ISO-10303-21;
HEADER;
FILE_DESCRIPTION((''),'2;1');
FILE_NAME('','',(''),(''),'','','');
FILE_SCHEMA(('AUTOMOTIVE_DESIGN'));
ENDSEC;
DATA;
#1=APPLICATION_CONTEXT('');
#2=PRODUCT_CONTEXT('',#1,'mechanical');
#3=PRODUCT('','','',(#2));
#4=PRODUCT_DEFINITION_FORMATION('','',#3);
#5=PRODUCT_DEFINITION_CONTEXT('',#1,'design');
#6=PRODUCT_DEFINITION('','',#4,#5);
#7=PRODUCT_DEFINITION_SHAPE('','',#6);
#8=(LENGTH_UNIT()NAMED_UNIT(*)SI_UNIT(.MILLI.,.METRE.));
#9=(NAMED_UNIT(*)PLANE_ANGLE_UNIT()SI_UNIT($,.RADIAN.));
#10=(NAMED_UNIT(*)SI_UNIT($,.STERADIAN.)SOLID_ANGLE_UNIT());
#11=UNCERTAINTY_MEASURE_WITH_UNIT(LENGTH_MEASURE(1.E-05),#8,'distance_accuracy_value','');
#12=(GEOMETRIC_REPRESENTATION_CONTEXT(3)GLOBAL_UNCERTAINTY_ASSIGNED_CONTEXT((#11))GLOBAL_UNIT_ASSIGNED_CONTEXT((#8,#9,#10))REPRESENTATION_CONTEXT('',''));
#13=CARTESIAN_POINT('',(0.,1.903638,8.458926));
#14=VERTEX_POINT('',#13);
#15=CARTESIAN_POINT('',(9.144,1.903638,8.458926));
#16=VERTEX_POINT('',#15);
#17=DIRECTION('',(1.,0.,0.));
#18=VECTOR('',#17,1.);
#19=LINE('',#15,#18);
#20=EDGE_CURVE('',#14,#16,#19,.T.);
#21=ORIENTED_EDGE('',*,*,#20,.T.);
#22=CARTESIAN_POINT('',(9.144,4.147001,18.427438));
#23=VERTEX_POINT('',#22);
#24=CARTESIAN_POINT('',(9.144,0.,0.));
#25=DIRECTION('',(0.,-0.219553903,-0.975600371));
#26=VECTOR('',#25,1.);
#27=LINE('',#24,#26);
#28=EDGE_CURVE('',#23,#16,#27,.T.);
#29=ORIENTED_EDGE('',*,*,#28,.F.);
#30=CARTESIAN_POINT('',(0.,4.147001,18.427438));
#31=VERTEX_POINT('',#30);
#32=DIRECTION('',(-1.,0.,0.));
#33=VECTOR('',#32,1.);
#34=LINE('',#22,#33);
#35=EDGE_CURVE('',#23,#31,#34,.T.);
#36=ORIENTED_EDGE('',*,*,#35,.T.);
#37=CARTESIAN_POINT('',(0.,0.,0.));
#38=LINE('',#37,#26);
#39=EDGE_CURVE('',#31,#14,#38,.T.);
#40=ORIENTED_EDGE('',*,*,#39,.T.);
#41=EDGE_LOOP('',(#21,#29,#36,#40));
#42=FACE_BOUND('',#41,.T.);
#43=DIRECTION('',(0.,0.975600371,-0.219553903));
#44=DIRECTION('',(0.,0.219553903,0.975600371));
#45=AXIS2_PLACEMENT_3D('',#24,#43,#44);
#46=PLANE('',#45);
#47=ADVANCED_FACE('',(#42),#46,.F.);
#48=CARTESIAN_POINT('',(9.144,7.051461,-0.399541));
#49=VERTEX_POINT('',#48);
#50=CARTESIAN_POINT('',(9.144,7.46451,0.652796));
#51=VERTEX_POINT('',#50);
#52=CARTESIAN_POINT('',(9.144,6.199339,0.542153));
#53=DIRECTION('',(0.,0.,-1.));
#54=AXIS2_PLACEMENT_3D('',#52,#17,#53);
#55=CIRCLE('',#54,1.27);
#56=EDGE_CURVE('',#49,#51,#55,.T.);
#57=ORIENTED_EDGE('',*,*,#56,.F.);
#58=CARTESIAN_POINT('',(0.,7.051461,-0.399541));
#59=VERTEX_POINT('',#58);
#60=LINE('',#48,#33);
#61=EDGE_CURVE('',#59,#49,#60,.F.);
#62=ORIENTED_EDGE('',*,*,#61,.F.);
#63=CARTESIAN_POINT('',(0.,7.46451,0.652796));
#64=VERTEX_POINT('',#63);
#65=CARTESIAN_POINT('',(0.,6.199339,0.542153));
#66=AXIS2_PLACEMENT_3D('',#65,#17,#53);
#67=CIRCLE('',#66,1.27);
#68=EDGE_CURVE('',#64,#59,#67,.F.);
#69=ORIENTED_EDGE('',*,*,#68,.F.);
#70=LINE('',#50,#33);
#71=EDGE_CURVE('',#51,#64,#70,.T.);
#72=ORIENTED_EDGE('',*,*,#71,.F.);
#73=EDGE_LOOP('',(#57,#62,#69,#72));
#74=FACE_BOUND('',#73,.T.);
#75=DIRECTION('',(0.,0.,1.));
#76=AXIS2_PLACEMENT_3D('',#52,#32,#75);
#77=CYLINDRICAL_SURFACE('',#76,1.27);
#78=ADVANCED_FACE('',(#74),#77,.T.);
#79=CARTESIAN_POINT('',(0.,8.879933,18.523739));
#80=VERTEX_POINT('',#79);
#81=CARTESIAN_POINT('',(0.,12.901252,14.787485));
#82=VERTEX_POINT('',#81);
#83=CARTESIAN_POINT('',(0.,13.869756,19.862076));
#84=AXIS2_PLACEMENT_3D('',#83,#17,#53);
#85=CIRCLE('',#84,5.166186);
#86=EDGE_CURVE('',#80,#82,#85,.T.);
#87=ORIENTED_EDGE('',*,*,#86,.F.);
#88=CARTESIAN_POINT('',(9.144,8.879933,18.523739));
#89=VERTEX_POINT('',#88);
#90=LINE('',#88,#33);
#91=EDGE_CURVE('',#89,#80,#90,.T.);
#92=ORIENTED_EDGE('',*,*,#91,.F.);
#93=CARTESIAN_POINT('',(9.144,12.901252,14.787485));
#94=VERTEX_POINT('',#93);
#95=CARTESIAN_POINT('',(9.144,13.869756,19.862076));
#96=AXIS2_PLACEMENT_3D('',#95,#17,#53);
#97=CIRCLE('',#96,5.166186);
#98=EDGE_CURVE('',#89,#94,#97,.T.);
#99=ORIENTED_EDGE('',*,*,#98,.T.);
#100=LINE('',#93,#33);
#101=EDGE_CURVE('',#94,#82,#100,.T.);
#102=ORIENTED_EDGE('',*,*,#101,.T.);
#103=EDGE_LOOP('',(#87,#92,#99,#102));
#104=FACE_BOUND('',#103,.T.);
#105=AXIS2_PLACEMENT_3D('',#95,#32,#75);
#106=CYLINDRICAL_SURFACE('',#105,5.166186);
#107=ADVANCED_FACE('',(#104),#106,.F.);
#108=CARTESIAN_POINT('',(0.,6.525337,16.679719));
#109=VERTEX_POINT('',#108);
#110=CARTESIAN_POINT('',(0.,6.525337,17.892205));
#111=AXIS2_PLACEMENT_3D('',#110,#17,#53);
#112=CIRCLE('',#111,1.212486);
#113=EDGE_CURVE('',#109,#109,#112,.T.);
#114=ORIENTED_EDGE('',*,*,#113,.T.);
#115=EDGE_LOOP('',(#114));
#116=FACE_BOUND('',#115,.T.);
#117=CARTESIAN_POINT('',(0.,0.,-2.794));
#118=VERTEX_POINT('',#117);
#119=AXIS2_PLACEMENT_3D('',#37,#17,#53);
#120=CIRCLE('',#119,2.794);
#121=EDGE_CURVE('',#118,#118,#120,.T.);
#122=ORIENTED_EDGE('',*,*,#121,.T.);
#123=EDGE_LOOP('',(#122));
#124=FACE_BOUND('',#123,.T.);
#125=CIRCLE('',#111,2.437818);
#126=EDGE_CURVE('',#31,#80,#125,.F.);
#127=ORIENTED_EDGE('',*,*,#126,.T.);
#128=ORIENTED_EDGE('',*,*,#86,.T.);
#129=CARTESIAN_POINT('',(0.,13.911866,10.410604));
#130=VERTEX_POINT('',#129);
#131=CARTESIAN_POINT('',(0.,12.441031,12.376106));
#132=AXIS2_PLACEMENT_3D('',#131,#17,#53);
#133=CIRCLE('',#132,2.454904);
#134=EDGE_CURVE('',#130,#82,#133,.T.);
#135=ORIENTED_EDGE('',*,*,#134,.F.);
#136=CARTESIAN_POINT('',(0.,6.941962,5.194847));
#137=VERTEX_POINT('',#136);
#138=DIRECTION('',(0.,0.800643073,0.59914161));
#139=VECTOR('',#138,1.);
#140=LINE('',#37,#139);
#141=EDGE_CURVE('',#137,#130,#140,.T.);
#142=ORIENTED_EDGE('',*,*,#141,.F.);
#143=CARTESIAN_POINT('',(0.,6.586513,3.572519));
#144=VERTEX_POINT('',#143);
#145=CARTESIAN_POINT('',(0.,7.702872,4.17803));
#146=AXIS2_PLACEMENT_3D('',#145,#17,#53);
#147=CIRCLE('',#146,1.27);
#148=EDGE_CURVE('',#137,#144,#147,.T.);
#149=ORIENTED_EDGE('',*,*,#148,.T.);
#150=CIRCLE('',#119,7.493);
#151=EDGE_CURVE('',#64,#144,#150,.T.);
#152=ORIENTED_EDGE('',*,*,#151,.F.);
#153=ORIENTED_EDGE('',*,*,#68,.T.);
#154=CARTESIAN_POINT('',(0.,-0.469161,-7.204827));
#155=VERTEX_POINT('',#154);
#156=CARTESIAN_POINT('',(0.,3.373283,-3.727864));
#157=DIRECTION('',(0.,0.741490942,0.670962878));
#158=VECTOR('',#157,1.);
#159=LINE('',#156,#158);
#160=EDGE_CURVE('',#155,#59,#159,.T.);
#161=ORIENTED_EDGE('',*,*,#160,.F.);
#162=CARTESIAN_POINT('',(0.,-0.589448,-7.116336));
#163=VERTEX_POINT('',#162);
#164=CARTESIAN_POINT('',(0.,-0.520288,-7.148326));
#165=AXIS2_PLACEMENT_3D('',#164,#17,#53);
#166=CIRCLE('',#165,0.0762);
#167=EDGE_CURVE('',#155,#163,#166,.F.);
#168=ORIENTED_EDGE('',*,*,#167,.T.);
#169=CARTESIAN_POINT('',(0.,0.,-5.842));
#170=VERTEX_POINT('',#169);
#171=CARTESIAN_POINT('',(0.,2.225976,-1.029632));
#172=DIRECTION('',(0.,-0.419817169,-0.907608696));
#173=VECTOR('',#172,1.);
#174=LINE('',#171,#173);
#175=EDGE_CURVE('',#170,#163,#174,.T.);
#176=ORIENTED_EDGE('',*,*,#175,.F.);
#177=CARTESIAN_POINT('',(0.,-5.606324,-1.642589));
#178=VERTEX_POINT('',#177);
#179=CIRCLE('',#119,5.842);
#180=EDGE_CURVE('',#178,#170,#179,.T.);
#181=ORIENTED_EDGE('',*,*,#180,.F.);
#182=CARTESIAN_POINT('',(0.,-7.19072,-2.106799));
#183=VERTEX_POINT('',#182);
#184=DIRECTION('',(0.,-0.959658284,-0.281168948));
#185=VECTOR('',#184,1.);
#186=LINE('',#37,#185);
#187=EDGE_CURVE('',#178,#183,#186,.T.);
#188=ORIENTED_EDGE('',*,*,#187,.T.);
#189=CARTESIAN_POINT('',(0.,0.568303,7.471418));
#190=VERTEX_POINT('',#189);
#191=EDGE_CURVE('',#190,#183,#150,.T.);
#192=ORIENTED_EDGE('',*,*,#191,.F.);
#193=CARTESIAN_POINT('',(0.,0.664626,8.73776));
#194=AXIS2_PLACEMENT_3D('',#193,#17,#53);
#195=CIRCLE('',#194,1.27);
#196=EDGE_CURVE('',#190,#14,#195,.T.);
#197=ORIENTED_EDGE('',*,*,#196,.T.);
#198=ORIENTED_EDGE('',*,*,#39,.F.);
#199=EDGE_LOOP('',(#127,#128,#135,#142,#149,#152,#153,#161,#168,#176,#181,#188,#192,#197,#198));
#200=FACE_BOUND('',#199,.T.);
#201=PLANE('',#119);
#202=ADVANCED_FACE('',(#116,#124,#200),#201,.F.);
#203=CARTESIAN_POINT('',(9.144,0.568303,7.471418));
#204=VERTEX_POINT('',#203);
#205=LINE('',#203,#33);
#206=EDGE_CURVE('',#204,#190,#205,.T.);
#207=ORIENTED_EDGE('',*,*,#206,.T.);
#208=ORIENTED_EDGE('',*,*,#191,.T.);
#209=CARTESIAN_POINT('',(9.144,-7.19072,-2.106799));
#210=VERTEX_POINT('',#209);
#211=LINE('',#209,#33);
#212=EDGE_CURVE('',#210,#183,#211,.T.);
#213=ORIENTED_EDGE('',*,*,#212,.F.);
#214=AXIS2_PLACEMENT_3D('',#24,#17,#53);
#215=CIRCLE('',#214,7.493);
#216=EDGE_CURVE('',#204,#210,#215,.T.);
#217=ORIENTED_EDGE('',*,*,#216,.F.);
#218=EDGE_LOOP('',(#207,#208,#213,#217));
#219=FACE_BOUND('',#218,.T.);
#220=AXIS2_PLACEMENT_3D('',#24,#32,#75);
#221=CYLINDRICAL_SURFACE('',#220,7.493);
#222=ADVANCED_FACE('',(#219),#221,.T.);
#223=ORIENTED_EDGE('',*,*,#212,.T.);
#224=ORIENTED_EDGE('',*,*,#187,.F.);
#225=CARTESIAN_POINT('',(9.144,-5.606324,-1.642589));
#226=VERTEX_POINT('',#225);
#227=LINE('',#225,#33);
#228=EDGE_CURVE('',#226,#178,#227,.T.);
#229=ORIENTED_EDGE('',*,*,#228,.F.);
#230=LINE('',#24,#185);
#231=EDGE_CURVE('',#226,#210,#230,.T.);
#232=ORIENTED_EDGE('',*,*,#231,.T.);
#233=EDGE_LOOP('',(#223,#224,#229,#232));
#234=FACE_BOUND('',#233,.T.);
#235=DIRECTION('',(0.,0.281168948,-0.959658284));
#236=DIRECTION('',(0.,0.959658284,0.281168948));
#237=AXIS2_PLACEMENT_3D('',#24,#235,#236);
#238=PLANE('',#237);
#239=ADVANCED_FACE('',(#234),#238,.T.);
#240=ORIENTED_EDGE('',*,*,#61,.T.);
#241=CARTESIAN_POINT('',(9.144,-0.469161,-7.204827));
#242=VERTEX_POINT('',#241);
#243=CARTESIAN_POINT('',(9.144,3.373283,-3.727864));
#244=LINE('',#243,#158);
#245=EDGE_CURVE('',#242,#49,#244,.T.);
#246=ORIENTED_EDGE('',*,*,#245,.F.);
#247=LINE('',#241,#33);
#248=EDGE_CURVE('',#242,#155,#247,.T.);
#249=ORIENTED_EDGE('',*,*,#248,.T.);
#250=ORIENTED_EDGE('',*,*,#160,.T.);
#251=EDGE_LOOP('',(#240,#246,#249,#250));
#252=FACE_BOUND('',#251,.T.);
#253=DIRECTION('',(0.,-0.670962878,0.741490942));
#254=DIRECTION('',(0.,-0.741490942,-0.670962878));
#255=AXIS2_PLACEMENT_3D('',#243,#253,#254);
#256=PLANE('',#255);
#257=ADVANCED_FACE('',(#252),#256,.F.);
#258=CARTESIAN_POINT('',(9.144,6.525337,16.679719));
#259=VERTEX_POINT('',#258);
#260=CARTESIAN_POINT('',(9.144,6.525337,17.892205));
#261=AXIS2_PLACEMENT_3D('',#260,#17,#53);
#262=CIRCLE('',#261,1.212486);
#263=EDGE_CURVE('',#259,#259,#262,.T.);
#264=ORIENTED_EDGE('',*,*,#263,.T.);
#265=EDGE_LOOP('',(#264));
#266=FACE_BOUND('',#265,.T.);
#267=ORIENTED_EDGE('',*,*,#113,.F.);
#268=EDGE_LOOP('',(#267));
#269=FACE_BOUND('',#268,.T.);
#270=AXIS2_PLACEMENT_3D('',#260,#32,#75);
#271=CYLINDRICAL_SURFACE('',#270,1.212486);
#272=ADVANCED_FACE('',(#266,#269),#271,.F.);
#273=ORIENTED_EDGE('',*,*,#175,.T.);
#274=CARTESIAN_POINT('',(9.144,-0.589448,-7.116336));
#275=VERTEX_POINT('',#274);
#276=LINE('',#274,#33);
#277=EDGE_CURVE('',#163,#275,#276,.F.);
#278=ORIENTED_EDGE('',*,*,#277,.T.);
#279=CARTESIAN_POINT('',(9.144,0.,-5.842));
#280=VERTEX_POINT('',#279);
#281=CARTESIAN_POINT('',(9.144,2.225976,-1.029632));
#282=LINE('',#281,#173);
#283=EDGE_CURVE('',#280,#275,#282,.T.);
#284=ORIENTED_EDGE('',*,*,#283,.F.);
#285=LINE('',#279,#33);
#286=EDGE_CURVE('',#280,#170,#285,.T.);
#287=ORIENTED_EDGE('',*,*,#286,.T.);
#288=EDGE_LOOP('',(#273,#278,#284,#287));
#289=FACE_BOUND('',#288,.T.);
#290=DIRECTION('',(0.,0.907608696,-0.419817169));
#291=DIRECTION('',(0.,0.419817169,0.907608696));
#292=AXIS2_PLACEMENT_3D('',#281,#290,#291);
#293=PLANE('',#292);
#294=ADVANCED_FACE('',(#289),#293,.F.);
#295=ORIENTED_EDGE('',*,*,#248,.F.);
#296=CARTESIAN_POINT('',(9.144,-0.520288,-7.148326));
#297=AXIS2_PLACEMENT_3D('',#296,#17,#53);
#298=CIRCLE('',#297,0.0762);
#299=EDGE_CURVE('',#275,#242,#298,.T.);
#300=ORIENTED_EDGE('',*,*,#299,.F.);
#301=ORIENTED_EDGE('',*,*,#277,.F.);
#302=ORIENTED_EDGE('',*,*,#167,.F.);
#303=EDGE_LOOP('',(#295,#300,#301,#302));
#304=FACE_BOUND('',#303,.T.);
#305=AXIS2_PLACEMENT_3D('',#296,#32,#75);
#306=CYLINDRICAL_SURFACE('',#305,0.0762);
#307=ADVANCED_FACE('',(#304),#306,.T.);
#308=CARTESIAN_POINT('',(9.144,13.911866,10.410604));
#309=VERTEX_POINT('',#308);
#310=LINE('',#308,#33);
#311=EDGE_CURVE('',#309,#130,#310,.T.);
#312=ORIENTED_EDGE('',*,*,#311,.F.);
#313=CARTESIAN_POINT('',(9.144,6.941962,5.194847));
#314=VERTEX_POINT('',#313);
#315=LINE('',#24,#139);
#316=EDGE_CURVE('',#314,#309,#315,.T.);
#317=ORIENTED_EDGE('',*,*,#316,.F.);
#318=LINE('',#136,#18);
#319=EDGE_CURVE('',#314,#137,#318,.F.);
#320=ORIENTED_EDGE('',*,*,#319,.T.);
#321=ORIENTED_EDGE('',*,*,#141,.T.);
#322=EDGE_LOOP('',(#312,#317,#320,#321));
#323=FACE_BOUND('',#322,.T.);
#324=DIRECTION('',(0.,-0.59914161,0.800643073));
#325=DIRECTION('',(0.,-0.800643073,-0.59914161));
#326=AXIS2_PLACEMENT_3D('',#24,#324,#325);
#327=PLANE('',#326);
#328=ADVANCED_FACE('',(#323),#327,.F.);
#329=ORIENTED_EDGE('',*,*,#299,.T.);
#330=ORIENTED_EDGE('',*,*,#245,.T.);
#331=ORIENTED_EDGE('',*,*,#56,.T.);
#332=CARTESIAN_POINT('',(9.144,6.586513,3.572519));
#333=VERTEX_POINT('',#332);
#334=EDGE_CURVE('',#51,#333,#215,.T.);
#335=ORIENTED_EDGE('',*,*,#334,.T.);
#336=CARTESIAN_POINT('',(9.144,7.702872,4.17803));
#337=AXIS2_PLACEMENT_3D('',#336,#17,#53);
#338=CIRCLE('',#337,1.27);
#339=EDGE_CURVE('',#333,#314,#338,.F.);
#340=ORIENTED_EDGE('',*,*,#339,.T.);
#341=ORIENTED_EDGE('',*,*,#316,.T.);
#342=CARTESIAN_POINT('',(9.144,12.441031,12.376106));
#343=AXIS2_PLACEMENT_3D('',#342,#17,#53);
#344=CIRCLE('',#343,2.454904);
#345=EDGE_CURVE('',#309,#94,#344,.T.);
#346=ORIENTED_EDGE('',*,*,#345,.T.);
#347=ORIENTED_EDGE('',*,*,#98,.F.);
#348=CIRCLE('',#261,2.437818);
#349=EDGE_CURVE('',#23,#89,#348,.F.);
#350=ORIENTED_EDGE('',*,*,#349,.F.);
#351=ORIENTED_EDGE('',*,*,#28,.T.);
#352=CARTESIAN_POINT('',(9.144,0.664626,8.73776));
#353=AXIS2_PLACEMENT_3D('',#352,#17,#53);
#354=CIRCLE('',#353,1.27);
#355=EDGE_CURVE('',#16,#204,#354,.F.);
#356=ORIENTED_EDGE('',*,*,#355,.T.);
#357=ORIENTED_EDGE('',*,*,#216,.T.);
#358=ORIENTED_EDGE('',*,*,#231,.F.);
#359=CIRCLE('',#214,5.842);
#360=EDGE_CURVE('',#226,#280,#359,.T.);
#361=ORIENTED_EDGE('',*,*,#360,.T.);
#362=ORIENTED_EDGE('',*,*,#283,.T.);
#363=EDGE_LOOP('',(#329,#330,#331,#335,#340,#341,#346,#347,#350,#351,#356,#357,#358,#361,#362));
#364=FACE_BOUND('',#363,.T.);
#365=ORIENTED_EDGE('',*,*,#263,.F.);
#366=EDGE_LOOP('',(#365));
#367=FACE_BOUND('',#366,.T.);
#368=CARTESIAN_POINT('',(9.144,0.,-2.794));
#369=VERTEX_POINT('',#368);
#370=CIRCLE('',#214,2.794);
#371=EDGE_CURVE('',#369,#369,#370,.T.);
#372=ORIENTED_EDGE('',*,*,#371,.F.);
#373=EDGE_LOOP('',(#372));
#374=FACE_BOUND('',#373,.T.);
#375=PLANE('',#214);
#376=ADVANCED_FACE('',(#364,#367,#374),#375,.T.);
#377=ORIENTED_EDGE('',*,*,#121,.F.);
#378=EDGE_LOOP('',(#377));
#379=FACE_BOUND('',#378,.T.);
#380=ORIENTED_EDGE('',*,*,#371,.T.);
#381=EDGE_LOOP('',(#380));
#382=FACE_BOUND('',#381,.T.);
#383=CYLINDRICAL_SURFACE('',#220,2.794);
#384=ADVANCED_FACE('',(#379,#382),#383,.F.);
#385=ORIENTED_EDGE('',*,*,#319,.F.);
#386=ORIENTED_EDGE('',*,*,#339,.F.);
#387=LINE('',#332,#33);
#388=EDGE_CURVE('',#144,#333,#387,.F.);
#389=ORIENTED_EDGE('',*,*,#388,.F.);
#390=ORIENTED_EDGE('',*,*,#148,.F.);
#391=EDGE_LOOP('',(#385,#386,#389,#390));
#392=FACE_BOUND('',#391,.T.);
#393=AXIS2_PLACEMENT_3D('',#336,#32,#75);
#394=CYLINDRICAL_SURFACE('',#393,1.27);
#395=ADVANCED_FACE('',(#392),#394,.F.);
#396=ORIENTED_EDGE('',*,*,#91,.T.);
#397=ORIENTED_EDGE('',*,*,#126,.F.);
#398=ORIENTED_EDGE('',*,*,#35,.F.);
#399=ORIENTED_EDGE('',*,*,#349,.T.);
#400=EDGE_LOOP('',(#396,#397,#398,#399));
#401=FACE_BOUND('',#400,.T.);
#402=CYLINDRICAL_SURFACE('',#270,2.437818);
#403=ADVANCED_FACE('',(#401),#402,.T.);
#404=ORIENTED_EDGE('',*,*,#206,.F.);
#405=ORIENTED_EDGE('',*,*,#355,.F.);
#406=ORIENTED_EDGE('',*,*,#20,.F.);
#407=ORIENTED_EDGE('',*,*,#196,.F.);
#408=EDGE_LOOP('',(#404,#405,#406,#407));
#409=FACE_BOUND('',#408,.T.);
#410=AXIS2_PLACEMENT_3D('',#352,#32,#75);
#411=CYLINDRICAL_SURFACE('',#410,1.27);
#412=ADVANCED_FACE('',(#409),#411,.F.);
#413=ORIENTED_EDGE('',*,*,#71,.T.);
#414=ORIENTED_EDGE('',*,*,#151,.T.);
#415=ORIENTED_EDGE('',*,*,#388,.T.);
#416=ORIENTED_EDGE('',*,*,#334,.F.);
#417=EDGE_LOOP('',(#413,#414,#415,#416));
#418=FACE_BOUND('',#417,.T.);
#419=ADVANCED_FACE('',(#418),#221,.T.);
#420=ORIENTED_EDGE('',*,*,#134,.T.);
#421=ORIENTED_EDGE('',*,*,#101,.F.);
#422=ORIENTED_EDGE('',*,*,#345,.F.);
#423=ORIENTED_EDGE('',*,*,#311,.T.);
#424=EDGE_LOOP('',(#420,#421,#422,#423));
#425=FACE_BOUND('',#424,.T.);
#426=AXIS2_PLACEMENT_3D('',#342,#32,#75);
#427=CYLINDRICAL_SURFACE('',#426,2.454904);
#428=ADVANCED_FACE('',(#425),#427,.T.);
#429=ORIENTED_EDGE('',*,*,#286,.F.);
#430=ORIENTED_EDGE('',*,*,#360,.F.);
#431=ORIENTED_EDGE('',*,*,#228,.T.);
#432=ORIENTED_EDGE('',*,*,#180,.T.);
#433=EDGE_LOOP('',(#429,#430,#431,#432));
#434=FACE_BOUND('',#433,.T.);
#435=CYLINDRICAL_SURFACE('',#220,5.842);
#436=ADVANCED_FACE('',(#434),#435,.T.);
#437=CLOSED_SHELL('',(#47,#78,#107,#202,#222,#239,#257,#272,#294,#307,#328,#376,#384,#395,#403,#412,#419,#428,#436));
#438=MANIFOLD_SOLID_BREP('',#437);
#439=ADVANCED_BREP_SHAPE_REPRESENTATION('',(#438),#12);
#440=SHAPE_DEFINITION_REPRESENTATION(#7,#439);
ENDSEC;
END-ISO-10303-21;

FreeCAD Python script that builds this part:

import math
import FreeCAD as App
import Part
import Sketcher

V = App.Vector
Q = App.Units.Quantity


def edges_at(feature, points):
    """Names of the edges that pass closest to the given points."""
    edges = feature.Shape.Edges
    near = lambda p: min(range(len(edges)), key=lambda i: edges[i].distToShape(Part.Vertex(*p))[0])
    return sorted({f"Edge{near(p) + 1}" for p in points})

doc = App.newDocument("Part")
body = doc.addObject("PartDesign::Body", "Body")

# Sketch on YZ plane
sketch1 = body.newObject("Sketcher::SketchObject", "Sketch")
sketch1.AttachmentSupport = (doc.getObject("YZ_Plane"), [""])
sketch1.MapMode = "FlatFace"
sketch1.addGeometry(Part.LineSegment(V(-0.7, -7.5, 0), V(7.5, 0, 0)), False)
sketch1.addGeometry(Part.ArcOfCircle(Part.Circle(V(0, 0, 0), V(0, 0, 1), 7.5), math.radians(0), math.radians(37)), False)
sketch1.addGeometry(Part.LineSegment(V(6, 4.5, 0), V(13.9, 10.4, 0)), False)
sketch1.addGeometry(Part.ArcOfCircle(Part.Circle(V(12.4, 12.4, 0), V(0, 0, 1), 2.5), math.radians(-53), math.radians(79)), False)
sketch1.addGeometry(Part.ArcOfCircle(Part.Circle(V(13.9, 19.9, 0), V(0, 0, 1), 5.2), math.radians(-165), math.radians(-101)), False)
sketch1.addGeometry(Part.ArcOfCircle(Part.Circle(V(6.5, 17.9, 0), V(0, 0, 1), 2.4), math.radians(15), math.radians(167)), False)
sketch1.addGeometry(Part.LineSegment(V(4.1, 18.4, 0), V(1.6, 7.3, 0)), False)
sketch1.addGeometry(Part.ArcOfCircle(Part.Circle(V(0, 0, 0), V(0, 0, 1), 7.5), math.radians(77), math.radians(196)), False)
sketch1.addGeometry(Part.LineSegment(V(-7.2, -2.1, 0), V(-5.6, -1.6, 0)), False)
sketch1.addGeometry(Part.ArcOfCircle(Part.Circle(V(0, 0, 0), V(0, 0, 1), 5.8), math.radians(-164), math.radians(-90)), False)
sketch1.addGeometry(Part.LineSegment(V(0, -5.8, 0), V(-0.7, -7.5, 0)), False)
sketch1.addGeometry(Part.Circle(V(0, 0, 0), V(0, 0, 1), 2.8), False)
sketch1.addGeometry(Part.Circle(V(6.5, 17.9, 0), V(0, 0, 1), 1.2), False)
sketch1.addConstraint(Sketcher.Constraint("Coincident", 0, 2, 1, 1))
sketch1.addConstraint(Sketcher.Constraint("Coincident", 1, 2, 2, 1))
sketch1.addConstraint(Sketcher.Constraint("Tangent", 2, 2, 3, 1))
sketch1.addConstraint(Sketcher.Constraint("Tangent", 3, 2, 4, 2))
sketch1.addConstraint(Sketcher.Constraint("Tangent", 4, 1, 5, 1))
sketch1.addConstraint(Sketcher.Constraint("Tangent", 5, 2, 6, 1))
sketch1.addConstraint(Sketcher.Constraint("Coincident", 6, 2, 7, 1))
sketch1.addConstraint(Sketcher.Constraint("Coincident", 7, 2, 8, 1))
sketch1.addConstraint(Sketcher.Constraint("Coincident", 8, 2, 9, 1))
sketch1.addConstraint(Sketcher.Constraint("Coincident", 9, 2, 10, 1))
sketch1.addConstraint(Sketcher.Constraint("Coincident", 10, 2, 0, 1))
sketch1.addConstraint(Sketcher.Constraint("Coincident", 1, 3, -1, 1))
sketch1.addConstraint(Sketcher.Constraint("Coincident", 7, 3, -1, 1))
sketch1.addConstraint(Sketcher.Constraint("Coincident", 9, 3, -1, 1))
sketch1.addConstraint(Sketcher.Constraint("Coincident", 11, 3, -1, 1))
sketch1.addConstraint(Sketcher.Constraint("Coincident", 12, 3, 5, 3))
sketch1.addConstraint(Sketcher.Constraint("Equal", 1, 7))
sketch1.addConstraint(Sketcher.Constraint("PointOnObject", 0, 2, -1))
sketch1.addConstraint(Sketcher.Constraint("PointOnObject", 9, 2, -2))
sketch1.addConstraint(Sketcher.Constraint("Diameter", 11, Q("0.22 in")))
sketch1.addConstraint(Sketcher.Constraint("Radius", 9, Q("0.23 in")))
sketch1.addConstraint(Sketcher.Constraint("Radius", 1, Q("0.295 in")))
sketch1.addConstraint(Sketcher.Constraint("Distance", 10, Q("0.07 in")))
sketch1.addConstraint(Sketcher.Constraint("Angle", 8, Q("16.329984 deg")))
sketch1.addConstraint(Sketcher.Constraint("Diameter", 12, Q("2.424973 mm")))
sketch1.addConstraint(Sketcher.Constraint("Radius", 3, Q("2.454904 mm")))
sketch1.addConstraint(Sketcher.Constraint("Radius", 4, Q("5.166186 mm")))
sketch1.addConstraint(Sketcher.Constraint("Radius", 5, Q("2.437818 mm")))
sketch1.addConstraint(Sketcher.Constraint("DistanceX", -1, 1, 5, 2, Q("4.147001 mm")))
sketch1.addConstraint(Sketcher.Constraint("DistanceY", 7, 2, -1, 1, Q("2.106799 mm")))
sketch1.addConstraint(Sketcher.Constraint("DistanceY", 3, 3, 5, 3, Q("5.5161 mm")))
sketch1.addConstraint(Sketcher.Constraint("DistanceY", 2, 2, 3, 3, Q("1.965502 mm")))
sketch1.addConstraint(Sketcher.Constraint("DistanceX", 4, 1, 3, 3, Q("3.561098 mm")))
sketch1.addConstraint(Sketcher.Constraint("DistanceY", 5, 2, 4, 1, Q("0.096302 mm")))
sketch1.addConstraint(Sketcher.Constraint("DistanceX", 6, 2, 1, 2, Q("4.354101 mm")))
sketch1.addConstraint(Sketcher.Constraint("DistanceY", 10, 2, -1, 1, Q("7.455728 mm")))
pad1 = body.newObject("PartDesign::Pad", "Pad")
pad1.Profile = sketch1
pad1.Length = Q("0.36 in")
doc.recompute()

fillet = body.newObject("PartDesign::Fillet", "Fillet")
fillet.Base = (pad1, edges_at(pad1, [(4.572, -0.746, -7.456)]))
fillet.Radius = Q("0.003 in")
doc.recompute()

fillet2 = body.newObject("PartDesign::Fillet", "Fillet001")
fillet2.Base = (fillet, edges_at(fillet, [(4.572, 5.999, 4.489)]))
fillet2.Radius = Q("0.05 in")
doc.recompute()

fillet3 = body.newObject("PartDesign::Fillet", "Fillet002")
fillet3.Base = (fillet2, edges_at(fillet2, [(4.572, 7.493, 0)]))
fillet3.Radius = Q("0.05 in")
doc.recompute()

fillet4 = body.newObject("PartDesign::Fillet", "Fillet003")
fillet4.Base = (fillet3, edges_at(fillet3, [(4.572, 1.645, 7.31)]))
fillet4.Radius = Q("0.05 in")

doc.recompute()
